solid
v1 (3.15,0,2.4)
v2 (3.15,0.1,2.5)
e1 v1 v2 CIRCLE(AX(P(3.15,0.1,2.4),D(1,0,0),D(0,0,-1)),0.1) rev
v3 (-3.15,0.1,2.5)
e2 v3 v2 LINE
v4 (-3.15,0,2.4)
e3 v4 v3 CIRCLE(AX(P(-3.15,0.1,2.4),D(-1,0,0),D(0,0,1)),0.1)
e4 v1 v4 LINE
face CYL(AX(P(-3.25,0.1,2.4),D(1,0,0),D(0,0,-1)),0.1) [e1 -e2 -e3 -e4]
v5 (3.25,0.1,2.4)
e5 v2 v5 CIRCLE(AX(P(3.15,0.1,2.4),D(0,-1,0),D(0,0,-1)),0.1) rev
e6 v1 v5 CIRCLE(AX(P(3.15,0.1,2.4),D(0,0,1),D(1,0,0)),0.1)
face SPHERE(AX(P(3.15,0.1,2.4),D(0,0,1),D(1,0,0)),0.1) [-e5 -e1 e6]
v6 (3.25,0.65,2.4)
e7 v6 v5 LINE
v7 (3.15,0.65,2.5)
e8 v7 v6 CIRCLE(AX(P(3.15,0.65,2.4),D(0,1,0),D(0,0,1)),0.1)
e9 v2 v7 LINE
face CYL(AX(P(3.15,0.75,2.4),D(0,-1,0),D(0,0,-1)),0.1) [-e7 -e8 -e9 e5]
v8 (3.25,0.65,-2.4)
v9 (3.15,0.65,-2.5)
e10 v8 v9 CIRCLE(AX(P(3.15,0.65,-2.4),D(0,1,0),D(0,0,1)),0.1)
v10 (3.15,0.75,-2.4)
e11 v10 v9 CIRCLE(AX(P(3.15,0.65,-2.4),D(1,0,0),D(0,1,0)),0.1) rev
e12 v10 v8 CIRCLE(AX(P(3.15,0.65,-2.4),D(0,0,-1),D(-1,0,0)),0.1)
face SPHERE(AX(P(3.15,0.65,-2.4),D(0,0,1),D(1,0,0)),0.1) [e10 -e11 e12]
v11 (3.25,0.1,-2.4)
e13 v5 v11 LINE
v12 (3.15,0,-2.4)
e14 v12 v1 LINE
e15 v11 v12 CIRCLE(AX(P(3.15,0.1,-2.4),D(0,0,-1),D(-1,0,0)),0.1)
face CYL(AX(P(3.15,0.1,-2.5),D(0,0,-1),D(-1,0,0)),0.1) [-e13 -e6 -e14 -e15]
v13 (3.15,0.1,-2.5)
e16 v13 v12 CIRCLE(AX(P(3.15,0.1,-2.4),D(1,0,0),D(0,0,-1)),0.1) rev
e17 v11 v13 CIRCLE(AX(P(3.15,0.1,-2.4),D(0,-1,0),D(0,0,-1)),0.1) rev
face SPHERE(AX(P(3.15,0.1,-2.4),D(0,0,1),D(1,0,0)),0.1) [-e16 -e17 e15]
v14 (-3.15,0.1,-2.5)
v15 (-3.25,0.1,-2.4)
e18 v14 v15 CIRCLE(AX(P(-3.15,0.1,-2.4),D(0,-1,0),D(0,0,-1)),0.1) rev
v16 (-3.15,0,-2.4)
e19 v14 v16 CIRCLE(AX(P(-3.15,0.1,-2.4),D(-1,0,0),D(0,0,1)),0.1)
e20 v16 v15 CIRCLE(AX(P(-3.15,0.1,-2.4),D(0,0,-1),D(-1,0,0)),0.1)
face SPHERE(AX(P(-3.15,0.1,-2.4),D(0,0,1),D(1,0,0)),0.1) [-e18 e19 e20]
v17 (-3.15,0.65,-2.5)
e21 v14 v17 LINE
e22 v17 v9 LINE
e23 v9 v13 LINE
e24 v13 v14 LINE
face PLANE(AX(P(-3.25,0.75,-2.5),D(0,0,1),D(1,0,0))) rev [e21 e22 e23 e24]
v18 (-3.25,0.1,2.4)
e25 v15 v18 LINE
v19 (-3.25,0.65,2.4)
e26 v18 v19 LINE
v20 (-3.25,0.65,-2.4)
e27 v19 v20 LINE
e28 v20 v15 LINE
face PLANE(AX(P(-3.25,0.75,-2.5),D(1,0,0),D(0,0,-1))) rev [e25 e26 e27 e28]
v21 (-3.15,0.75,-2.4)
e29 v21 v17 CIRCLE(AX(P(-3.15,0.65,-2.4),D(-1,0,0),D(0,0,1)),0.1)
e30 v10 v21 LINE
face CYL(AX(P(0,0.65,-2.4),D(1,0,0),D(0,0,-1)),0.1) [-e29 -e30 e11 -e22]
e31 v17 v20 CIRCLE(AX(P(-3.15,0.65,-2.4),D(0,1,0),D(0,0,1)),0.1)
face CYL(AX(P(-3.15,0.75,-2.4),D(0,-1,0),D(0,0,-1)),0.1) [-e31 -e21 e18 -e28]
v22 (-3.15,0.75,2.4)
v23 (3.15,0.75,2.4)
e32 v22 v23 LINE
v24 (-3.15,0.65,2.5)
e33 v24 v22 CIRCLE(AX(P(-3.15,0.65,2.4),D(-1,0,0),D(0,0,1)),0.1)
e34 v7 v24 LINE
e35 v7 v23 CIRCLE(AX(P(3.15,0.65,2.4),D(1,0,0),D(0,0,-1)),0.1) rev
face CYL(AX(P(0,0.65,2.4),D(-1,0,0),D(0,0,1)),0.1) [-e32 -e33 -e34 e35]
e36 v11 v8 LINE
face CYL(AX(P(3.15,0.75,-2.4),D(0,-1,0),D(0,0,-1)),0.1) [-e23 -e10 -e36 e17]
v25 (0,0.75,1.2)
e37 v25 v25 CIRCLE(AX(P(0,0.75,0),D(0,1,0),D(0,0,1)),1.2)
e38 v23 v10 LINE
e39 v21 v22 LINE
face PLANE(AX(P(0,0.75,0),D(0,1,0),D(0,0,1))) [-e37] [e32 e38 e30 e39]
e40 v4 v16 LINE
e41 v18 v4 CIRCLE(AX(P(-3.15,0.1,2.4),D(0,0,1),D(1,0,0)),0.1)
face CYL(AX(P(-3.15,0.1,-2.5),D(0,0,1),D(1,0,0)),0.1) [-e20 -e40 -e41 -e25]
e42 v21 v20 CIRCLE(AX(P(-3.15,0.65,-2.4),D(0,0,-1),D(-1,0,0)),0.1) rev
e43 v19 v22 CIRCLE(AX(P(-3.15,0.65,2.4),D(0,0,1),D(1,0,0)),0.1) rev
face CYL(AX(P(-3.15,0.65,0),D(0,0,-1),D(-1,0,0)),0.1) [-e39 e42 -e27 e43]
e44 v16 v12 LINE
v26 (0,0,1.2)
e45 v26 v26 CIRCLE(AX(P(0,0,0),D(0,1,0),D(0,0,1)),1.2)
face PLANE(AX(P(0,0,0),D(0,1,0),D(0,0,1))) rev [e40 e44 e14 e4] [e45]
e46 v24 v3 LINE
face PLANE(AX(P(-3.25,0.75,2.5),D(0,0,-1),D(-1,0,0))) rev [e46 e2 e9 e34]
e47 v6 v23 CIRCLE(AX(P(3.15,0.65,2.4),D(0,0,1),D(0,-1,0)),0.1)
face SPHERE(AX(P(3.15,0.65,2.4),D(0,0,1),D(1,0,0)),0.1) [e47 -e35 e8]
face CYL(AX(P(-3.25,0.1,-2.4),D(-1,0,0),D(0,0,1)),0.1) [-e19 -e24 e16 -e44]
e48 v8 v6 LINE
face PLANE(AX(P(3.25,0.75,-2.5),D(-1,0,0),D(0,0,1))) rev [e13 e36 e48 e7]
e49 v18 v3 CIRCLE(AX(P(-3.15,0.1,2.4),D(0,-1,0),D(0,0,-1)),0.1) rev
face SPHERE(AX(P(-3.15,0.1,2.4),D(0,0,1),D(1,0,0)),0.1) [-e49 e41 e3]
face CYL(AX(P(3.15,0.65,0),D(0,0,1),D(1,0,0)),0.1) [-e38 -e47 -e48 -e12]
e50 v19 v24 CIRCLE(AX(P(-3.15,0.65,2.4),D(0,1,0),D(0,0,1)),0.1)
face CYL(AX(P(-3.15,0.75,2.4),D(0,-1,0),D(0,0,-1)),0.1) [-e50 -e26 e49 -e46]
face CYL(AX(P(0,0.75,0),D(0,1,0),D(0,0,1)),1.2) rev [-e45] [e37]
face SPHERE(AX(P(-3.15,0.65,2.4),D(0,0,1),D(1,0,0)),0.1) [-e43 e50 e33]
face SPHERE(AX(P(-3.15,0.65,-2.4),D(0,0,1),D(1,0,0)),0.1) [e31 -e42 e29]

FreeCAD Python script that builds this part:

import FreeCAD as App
import Part
import Sketcher
Q = App.Units.Quantity


def edges_at(feature, points):
    """Names of the edges that pass closest to the given points."""
    edges = feature.Shape.Edges
    near = lambda p: min(range(len(edges)), key=lambda i: edges[i].distToShape(Part.Vertex(*p))[0])
    return sorted({f"Edge{near(p) + 1}" for p in points})


def add_polygon(sketch, points):
    """Adds a closed chain of lines whose ends are joined by coincident constraints."""
    first, n = sketch.GeometryCount, len(points)
    for a, b in zip(points, points[1:] + points[:1]):
        sketch.addGeometry(Part.LineSegment(App.Vector(*a, 0), App.Vector(*b, 0)), False)
    for i in range(n):
        sketch.addConstraint(Sketcher.Constraint("Coincident", first + i, 2, first + (i + 1) % n, 1))

doc = App.newDocument("Part")
params = doc.addObject("Spreadsheet::Sheet", "Params")
for row, (alias, value) in enumerate([
    ("sketch1_height", "5 mm"),
    ("sketch1_width", "6.5 mm"),
    ("pad1_length", "0.75 mm"),
    ("sketch2_diameter", "2.4 mm"),
    ("hole_diameter", "2.4 mm"),
    ("hole_depth", "1.6 mm"),
    ("fillet_radius", "0.1 mm"),
], start=1):
    params.set(f"A{row}", alias)
    params.set(f"B{row}", "=" + value)
    params.setAlias(f"B{row}", alias)

body = doc.addObject("PartDesign::Body", "Body")

sketch1 = body.newObject("Sketcher::SketchObject", "Sketch")
sketch1.AttachmentSupport = (doc.getObject("XZ_Plane"), [""])
sketch1.MapMode = "FlatFace"
add_polygon(sketch1, [(-3, -2), (-3, 2), (3, 2), (3, -2)])
sketch1.addConstraint(Sketcher.Constraint("Vertical", 0))
sketch1.addConstraint(Sketcher.Constraint("Horizontal", 1))
sketch1.addConstraint(Sketcher.Constraint("Vertical", 2))
sketch1.addConstraint(Sketcher.Constraint("Horizontal", 3))
sketch1.addConstraint(Sketcher.Constraint("Symmetric", 0, 2, 2, 2, -1, 1))
sketch1.addConstraint(Sketcher.Constraint("DistanceY", 0, 1, 0, 2, Q("5 mm")))
sketch1.addConstraint(Sketcher.Constraint("DistanceX", 1, 1, 1, 2, Q("6.5 mm")))
sketch1.setExpression("Constraints[9]", "Params.sketch1_height")
sketch1.setExpression("Constraints[10]", "Params.sketch1_width")
pad1 = body.newObject("PartDesign::Pad", "Pad")
pad1.Profile = sketch1
pad1.setExpression("Length", "Params.pad1_length")
pad1.Reversed = True

sketch2 = body.newObject("Sketcher::SketchObject", "Sketch001")
sketch2.AttachmentSupport = (doc.getObject("XZ_Plane"), [""])
sketch2.MapMode = "FlatFace"
sketch2.AttachmentOffset = App.Placement(App.Vector(0, 0, -0.75), App.Rotation())
sketch2.addGeometry(Part.Circle(App.Vector(0, 0, 0), App.Vector(0, 0, 1), 1.2), False)
sketch2.addConstraint(Sketcher.Constraint("Coincident", 0, 3, -1, 1))
sketch2.addConstraint(Sketcher.Constraint("Diameter", 0, Q("2.4 mm")))
sketch2.setExpression("Constraints[1]", "Params.sketch2_diameter")
doc.recompute()
hole = body.newObject("PartDesign::Hole", "Hole")
hole.Profile = sketch2
hole.ThreadType = "None"
hole.setExpression("Diameter", "Params.hole_diameter")
hole.DepthType = "Dimension"
hole.setExpression("Depth", "Params.hole_depth")
hole.DrillPoint = "Angled"
hole.DrillPointAngle = 118
hole.Reversed = True
doc.recompute()

fillet = body.newObject("PartDesign::Fillet", "Fillet")
fillet.Base = (hole, edges_at(hole, [
    (3.25, 0.75, 0),
    (0, 0.75, -2.5),
    (-3.25, 0.75, 0),
    (0, 0, -2.5),
    (3.25, 0, 0),
    (0, 0, 2.5),
    (-3.25, 0, 0),
    (-3.25, 0.375, -2.5),
    (3.25, 0.375, -2.5),
    (3.25, 0.375, 2.5),
    (-3.25, 0.375, 2.5),
    (0, 0.75, 2.5),
]))
fillet.setExpression("Radius", "Params.fillet_radius")

doc.recompute()
